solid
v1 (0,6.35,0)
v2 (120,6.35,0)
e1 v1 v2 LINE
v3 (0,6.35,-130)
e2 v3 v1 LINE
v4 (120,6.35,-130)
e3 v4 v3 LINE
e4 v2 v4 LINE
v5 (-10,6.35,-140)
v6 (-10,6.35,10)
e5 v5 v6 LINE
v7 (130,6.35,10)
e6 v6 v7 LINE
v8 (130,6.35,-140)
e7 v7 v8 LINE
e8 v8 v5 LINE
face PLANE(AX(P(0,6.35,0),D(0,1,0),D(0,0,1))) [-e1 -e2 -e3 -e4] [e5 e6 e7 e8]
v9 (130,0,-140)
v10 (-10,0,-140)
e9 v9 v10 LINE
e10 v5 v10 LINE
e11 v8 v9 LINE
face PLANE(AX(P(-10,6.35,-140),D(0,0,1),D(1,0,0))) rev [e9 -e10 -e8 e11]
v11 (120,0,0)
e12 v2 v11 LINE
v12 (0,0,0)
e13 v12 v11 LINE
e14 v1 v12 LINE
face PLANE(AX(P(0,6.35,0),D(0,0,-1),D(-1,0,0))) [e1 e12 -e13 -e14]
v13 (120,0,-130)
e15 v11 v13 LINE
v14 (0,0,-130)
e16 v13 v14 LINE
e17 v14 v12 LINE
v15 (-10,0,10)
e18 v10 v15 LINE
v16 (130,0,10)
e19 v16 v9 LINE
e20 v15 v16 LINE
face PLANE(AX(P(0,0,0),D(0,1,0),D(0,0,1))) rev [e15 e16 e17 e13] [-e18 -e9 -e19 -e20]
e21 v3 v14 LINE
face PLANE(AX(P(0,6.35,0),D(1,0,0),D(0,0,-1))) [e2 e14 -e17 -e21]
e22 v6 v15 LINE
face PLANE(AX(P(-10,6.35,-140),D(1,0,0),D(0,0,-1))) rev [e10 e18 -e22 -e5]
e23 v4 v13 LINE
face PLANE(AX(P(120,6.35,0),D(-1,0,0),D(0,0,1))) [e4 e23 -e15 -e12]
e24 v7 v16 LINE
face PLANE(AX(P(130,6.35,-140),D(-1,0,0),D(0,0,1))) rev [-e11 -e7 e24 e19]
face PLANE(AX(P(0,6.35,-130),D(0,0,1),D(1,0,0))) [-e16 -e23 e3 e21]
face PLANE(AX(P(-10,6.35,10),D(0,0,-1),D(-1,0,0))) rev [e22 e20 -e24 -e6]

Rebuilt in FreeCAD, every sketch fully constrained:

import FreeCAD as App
import Part
import Sketcher

V = App.Vector

doc = App.newDocument("Part")
params = doc.addObject("Spreadsheet::Sheet", "Params")
for row, (alias, value) in enumerate([
    ("sketch1_width", "140 mm"),
    ("sketch1_width2", "120 mm"),
    ("sketch1_height", "150 mm"),
    ("sketch1_height2", "130 mm"),
    ("pad1_length", "6.35 mm"),
], start=1):
    params.set(f"A{row}", alias)
    params.set(f"B{row}", "=" + value)
    params.setAlias(f"B{row}", alias)

body = doc.addObject("PartDesign::Body", "Body")

# Sketch on XZ plane
sketch1 = doc.addObject("Sketcher::SketchObject", "Sketch")
body.addObject(sketch1)
sketch1.AttachmentSupport = (doc.XZ_Plane, [""])
sketch1.MapMode = "FlatFace"
sketch1.addGeometry(Part.LineSegment(V(-10, -140, 0), V(-10, 10, 0)), False)
sketch1.addGeometry(Part.LineSegment(V(-10, 10, 0), V(130, 10, 0)), False)
sketch1.addGeometry(Part.LineSegment(V(130, 10, 0), V(130, -140, 0)), False)
sketch1.addGeometry(Part.LineSegment(V(130, -140, 0), V(-10, -140, 0)), False)
sketch1.addGeometry(Part.LineSegment(V(120, 0, 0), V(0, 0, 0)), False)
sketch1.addGeometry(Part.LineSegment(V(0, 0, 0), V(0, -130, 0)), False)
sketch1.addGeometry(Part.LineSegment(V(0, -130, 0), V(120, -130, 0)), False)
sketch1.addGeometry(Part.LineSegment(V(120, -130, 0), V(120, 0, 0)), False)
sketch1.addConstraint(Sketcher.Constraint("Coincident", 0, 2, 1, 1))
sketch1.addConstraint(Sketcher.Constraint("Coincident", 1, 2, 2, 1))
sketch1.addConstraint(Sketcher.Constraint("Coincident", 2, 2, 3, 1))
sketch1.addConstraint(Sketcher.Constraint("Coincident", 3, 2, 0, 1))
sketch1.addConstraint(Sketcher.Constraint("Coincident", 4, 2, 5, 1))
sketch1.addConstraint(Sketcher.Constraint("Coincident", 5, 2, 6, 1))
sketch1.addConstraint(Sketcher.Constraint("Coincident", 6, 2, 7, 1))
sketch1.addConstraint(Sketcher.Constraint("Coincident", 7, 2, 4, 1))
sketch1.addConstraint(Sketcher.Constraint("Vertical", 0))
sketch1.addConstraint(Sketcher.Constraint("Horizontal", 1))
sketch1.addConstraint(Sketcher.Constraint("Vertical", 2))
sketch1.addConstraint(Sketcher.Constraint("Horizontal", 3))
sketch1.addConstraint(Sketcher.Constraint("Horizontal", 4))
sketch1.addConstraint(Sketcher.Constraint("Vertical", 5))
sketch1.addConstraint(Sketcher.Constraint("Horizontal", 6))
sketch1.addConstraint(Sketcher.Constraint("Vertical", 7))
sketch1.addConstraint(Sketcher.Constraint("Coincident", 4, 2, -1, 1))
sketch1.addConstraint(Sketcher.Constraint("DistanceX", 1, 1, 1, 2, 140.0))
sketch1.addConstraint(Sketcher.Constraint("DistanceX", 4, 2, 4, 1, 120.0))
sketch1.addConstraint(Sketcher.Constraint("DistanceY", 0, 1, 0, 2, 150.0))
sketch1.addConstraint(Sketcher.Constraint("DistanceY", 5, 2, 5, 1, 130.0))
sketch1.addConstraint(Sketcher.Constraint("DistanceX", 0, 2, -1, 1, 10.0))
sketch1.addConstraint(Sketcher.Constraint("DistanceY", -1, 1, 0, 2, 10.0))
sketch1.setExpression("Constraints[17]", "Params.sketch1_width")
sketch1.setExpression("Constraints[18]", "Params.sketch1_width2")
sketch1.setExpression("Constraints[19]", "Params.sketch1_height")
sketch1.setExpression("Constraints[20]", "Params.sketch1_height2")
pad1 = doc.addObject("PartDesign::Pad", "Pad")
body.addObject(pad1)
pad1.Profile = sketch1
pad1.setExpression("Length", "Params.pad1_length")
pad1.Reversed = True

doc.recompute()
